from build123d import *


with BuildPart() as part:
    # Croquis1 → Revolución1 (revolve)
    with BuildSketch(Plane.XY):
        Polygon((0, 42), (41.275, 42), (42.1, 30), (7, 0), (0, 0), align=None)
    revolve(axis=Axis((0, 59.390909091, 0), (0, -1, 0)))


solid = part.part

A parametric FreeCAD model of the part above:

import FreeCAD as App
import Part
import Sketcher
from FreeCAD import Vector
Q = App.Units.Quantity


def add_polygon(sketch, points):
    """Adds a closed chain of lines whose ends are joined by coincident constraints."""
    first, n = sketch.GeometryCount, len(points)
    for a, b in zip(points, points[1:] + points[:1]):
        sketch.addGeometry(Part.LineSegment(App.Vector(*a, 0), App.Vector(*b, 0)), False)
    for i in range(n):
        sketch.addConstraint(Sketcher.Constraint("Coincident", first + i, 2, first + (i + 1) % n, 1))

doc = App.newDocument("Part")
body = doc.addObject("PartDesign::Body", "Body")

# Sketch on XY plane
sketch1 = body.newObject("Sketcher::SketchObject", "Sketch")
sketch1.AttachmentSupport = (doc.getObject("XY_Plane"), [""])
sketch1.MapMode = "FlatFace"
add_polygon(sketch1, [(41, 42), (0, 42), (0, 0), (7, 0), (42, 30)])  # lines 0-4
sketch1.addConstraint([
    Sketcher.Constraint("Horizontal", 0),
    Sketcher.Constraint("Vertical", 1),
    Sketcher.Constraint("Horizontal", 2),
    Sketcher.Constraint("Coincident", 1, 2, -1, 1),
    Sketcher.Constraint("DistanceX", 2, 1, 2, 2, Q("7 mm")),
    Sketcher.Constraint("DistanceY", 1, 2, 1, 1, Q("42 mm")),
    Sketcher.Constraint("DistanceY", -1, 1, 3, 2, Q("30 mm")),
    Sketcher.Constraint("DistanceX", -1, 1, 3, 2, Q("42.1 mm")),
    Sketcher.Constraint("DistanceX", 0, 2, 0, 1, Q("41.275 mm")),
])
revolution = body.newObject("PartDesign::Revolution", "Revolution")
revolution.Profile = sketch1
revolution.ReferenceAxis = (sketch1, ["V_Axis"])
revolution.Angle = 360

doc.recompute()
